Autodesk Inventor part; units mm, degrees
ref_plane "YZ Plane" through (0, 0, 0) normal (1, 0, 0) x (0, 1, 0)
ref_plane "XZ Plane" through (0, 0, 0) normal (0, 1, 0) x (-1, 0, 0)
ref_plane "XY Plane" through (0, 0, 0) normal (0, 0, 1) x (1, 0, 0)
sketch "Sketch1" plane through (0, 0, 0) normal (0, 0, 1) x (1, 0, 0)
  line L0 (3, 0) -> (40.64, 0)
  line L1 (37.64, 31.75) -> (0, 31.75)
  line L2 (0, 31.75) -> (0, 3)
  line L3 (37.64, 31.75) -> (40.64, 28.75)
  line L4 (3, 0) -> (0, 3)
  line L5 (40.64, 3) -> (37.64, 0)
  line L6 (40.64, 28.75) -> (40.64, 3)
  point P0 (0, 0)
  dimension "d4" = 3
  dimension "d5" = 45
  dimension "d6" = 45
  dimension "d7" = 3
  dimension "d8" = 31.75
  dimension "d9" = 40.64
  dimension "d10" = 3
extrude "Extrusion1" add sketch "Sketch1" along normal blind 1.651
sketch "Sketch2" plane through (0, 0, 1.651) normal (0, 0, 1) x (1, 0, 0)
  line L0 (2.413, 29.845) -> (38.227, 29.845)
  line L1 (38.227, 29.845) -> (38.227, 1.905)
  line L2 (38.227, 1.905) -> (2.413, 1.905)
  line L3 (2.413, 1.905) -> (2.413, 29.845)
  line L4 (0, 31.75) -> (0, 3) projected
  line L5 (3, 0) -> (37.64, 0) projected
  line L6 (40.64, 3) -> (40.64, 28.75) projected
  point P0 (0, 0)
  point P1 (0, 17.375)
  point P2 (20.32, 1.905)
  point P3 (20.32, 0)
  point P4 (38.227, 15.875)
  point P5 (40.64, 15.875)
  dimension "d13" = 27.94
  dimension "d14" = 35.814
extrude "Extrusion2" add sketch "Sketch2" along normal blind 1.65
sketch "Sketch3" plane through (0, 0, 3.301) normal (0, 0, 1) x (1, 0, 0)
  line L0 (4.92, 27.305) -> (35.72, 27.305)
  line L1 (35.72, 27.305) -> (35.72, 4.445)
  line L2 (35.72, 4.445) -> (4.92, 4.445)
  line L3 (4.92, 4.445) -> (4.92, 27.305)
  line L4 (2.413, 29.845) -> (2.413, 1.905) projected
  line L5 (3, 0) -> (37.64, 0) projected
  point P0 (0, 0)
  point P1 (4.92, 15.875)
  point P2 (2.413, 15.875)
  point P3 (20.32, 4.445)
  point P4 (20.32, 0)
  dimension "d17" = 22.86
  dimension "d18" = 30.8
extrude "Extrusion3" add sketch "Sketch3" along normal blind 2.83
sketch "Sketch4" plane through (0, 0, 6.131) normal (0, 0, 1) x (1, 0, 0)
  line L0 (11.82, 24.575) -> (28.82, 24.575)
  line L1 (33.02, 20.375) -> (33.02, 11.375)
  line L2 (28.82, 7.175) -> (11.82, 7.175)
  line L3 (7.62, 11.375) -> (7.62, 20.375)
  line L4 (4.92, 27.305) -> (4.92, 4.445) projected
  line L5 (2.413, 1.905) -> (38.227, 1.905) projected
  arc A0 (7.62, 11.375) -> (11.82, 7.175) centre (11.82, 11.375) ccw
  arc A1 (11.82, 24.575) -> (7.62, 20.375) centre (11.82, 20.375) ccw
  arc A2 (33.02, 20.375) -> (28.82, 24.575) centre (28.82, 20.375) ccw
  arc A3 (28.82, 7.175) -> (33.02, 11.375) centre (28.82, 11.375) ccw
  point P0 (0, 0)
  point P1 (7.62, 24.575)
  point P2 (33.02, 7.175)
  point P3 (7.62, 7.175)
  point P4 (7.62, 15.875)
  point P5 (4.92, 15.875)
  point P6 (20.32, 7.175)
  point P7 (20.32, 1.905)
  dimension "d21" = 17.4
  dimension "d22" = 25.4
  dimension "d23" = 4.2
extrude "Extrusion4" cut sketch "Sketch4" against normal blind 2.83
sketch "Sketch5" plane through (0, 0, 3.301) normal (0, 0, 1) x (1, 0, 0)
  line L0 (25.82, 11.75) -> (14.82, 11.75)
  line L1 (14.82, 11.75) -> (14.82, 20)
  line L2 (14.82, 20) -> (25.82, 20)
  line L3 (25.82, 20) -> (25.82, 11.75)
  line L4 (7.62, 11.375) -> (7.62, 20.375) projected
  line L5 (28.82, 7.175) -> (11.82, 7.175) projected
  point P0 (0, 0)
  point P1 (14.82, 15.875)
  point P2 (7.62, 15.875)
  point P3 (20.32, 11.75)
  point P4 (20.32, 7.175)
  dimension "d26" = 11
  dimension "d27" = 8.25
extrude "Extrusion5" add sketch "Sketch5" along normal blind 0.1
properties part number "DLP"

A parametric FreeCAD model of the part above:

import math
import FreeCAD as App
import Part
import Sketcher
from FreeCAD import Vector
Q = App.Units.Quantity

doc = App.newDocument("Part")
body = doc.addObject("PartDesign::Body", "Body")

sketch1 = body.newObject("Sketcher::SketchObject", "Sketch")
sketch1.AttachmentSupport = (doc.getObject("XY_Plane"), [""])
sketch1.MapMode = "FlatFace"
sketch1.addGeometry([
    Part.LineSegment(Vector(0, 3, 0), Vector(3, 0, 0)),
    Part.LineSegment(Vector(3, 0, 0), Vector(37.64, 0, 0)),
    Part.LineSegment(Vector(37.64, 0, 0), Vector(40.64, 3, 0)),
    Part.LineSegment(Vector(40.64, 3, 0), Vector(40.64, 28.75, 0)),
    Part.LineSegment(Vector(40.64, 28.75, 0), Vector(37.64, 31.75, 0)),
    Part.LineSegment(Vector(37.64, 31.75, 0), Vector(0, 31.75, 0)),
    Part.LineSegment(Vector(0, 31.75, 0), Vector(0, 3, 0)),
], False)
sketch1.addConstraint([
    Sketcher.Constraint("Coincident", 0, 2, 1, 1),
    Sketcher.Constraint("Coincident", 1, 2, 2, 1),
    Sketcher.Constraint("Coincident", 2, 2, 3, 1),
    Sketcher.Constraint("Coincident", 3, 2, 4, 1),
    Sketcher.Constraint("Coincident", 4, 2, 5, 1),
    Sketcher.Constraint("Coincident", 5, 2, 6, 1),
    Sketcher.Constraint("Coincident", 6, 2, 0, 1),
    Sketcher.Constraint("Horizontal", 1),
    Sketcher.Constraint("Vertical", 3),
    Sketcher.Constraint("Horizontal", 5),
    Sketcher.Constraint("Vertical", 6),
    Sketcher.Constraint("PointOnObject", 0, 2, -1),
    Sketcher.Constraint("PointOnObject", 5, 2, -2),
    Sketcher.Constraint("Perpendicular", 0, 2),
    Sketcher.Constraint("Perpendicular", 2, 4),
    Sketcher.Constraint("Horizontal", 2, 2, 6, 2),
    Sketcher.Constraint("Vertical", 1, 2, 4, 2),
    Sketcher.Constraint("Equal", 0, 2),
    Sketcher.Constraint("DistanceX", -1, 1, 2, 2, Q("1.6 in")),
    Sketcher.Constraint("DistanceY", -1, 1, 4, 2, Q("1.25 in")),
    Sketcher.Constraint("DistanceX", -1, 1, 0, 2, Q("0.1181 in")),
])
pad1 = body.newObject("PartDesign::Pad", "Pad")
pad1.Profile = sketch1
pad1.Length = Q("0.065 in")

sketch2 = body.newObject("Sketcher::SketchObject", "Sketch001")
sketch2.AttachmentSupport = (doc.getObject("XY_Plane"), [""])
sketch2.MapMode = "FlatFace"
sketch2.AttachmentOffset = App.Placement(Vector(0, 0, 0.065 * 25.4), App.Rotation())
sketch2.addGeometry([
    Part.LineSegment(Vector(38.227, 29.845, 0), Vector(2.413, 29.845, 0)),
    Part.LineSegment(Vector(2.413, 29.845, 0), Vector(2.413, 1.905, 0)),
    Part.LineSegment(Vector(2.413, 1.905, 0), Vector(38.227, 1.905, 0)),
    Part.LineSegment(Vector(38.227, 1.905, 0), Vector(38.227, 29.845, 0)),
], False)
sketch2.addConstraint([
    Sketcher.Constraint("Coincident", 0, 2, 1, 1),
    Sketcher.Constraint("Coincident", 1, 2, 2, 1),
    Sketcher.Constraint("Coincident", 2, 2, 3, 1),
    Sketcher.Constraint("Coincident", 3, 2, 0, 1),
    Sketcher.Constraint("Horizontal", 0),
    Sketcher.Constraint("Vertical", 1),
    Sketcher.Constraint("Horizontal", 2),
    Sketcher.Constraint("Vertical", 3),
    Sketcher.Constraint("DistanceY", 1, 2, 1, 1, Q("1.1 in")),
    Sketcher.Constraint("DistanceX", 0, 2, 0, 1, Q("1.41 in")),
    Sketcher.Constraint("DistanceX", -1, 1, 0, 2, Q("0.095 in")),
    Sketcher.Constraint("DistanceY", -1, 1, 0, 2, Q("1.175 in")),
])
pad2 = body.newObject("PartDesign::Pad", "Pad001")
pad2.Profile = sketch2
pad2.Length = 1.65

sketch3 = body.newObject("Sketcher::SketchObject", "Sketch002")
sketch3.AttachmentSupport = (doc.getObject("XY_Plane"), [""])
sketch3.MapMode = "FlatFace"
sketch3.AttachmentOffset = App.Placement(Vector(0, 0, 3.301), App.Rotation())
sketch3.addGeometry([
    Part.LineSegment(Vector(35.72, 27.305, 0), Vector(4.92, 27.305, 0)),
    Part.LineSegment(Vector(4.92, 27.305, 0), Vector(4.92, 4.445, 0)),
    Part.LineSegment(Vector(4.92, 4.445, 0), Vector(35.72, 4.445, 0)),
    Part.LineSegment(Vector(35.72, 4.445, 0), Vector(35.72, 27.305, 0)),
], False)
sketch3.addConstraint([
    Sketcher.Constraint("Coincident", 0, 2, 1, 1),
    Sketcher.Constraint("Coincident", 1, 2, 2, 1),
    Sketcher.Constraint("Coincident", 2, 2, 3, 1),
    Sketcher.Constraint("Coincident", 3, 2, 0, 1),
    Sketcher.Constraint("Horizontal", 0),
    Sketcher.Constraint("Vertical", 1),
    Sketcher.Constraint("Horizontal", 2),
    Sketcher.Constraint("Vertical", 3),
    Sketcher.Constraint("DistanceY", 1, 2, 1, 1, Q("0.9 in")),
    Sketcher.Constraint("DistanceX", 0, 2, 0, 1, Q("1.2126 in")),
    Sketcher.Constraint("DistanceY", -1, 1, 0, 2, Q("1.075 in")),
    Sketcher.Constraint("DistanceX", -1, 1, 0, 2, Q("0.1937 in")),
])
pad3 = body.newObject("PartDesign::Pad", "Pad002")
pad3.Profile = sketch3
pad3.Length = 2.83

sketch4 = body.newObject("Sketcher::SketchObject", "Sketch003")
sketch4.AttachmentSupport = (doc.getObject("XY_Plane"), [""])
sketch4.MapMode = "FlatFace"
sketch4.AttachmentOffset = App.Placement(Vector(0, 0, 6.131), App.Rotation())
sketch4.addGeometry([
    Part.LineSegment(Vector(28.82, 24.575, 0), Vector(11.82, 24.575, 0)),
    Part.ArcOfCircle(Part.Circle(Vector(11.82, 20.375, 0), Vector(0, 0, 1), 4.2), math.radians(90), math.radians(180)),
    Part.LineSegment(Vector(7.62, 20.375, 0), Vector(7.62, 11.375, 0)),
    Part.ArcOfCircle(Part.Circle(Vector(11.82, 11.375, 0), Vector(0, 0, 1), 4.2), math.radians(180), math.radians(270)),
    Part.LineSegment(Vector(11.82, 7.175, 0), Vector(28.82, 7.175, 0)),
    Part.ArcOfCircle(Part.Circle(Vector(28.82, 11.375, 0), Vector(0, 0, 1), 4.2), math.radians(-90), math.radians(0)),
    Part.LineSegment(Vector(33.02, 11.375, 0), Vector(33.02, 20.375, 0)),
    Part.ArcOfCircle(Part.Circle(Vector(28.82, 20.375, 0), Vector(0, 0, 1), 4.2), math.radians(0), math.radians(90)),
], False)
sketch4.addConstraint([
    Sketcher.Constraint("Tangent", 0, 2, 1, 1),
    Sketcher.Constraint("Tangent", 1, 2, 2, 1),
    Sketcher.Constraint("Tangent", 2, 2, 3, 1),
    Sketcher.Constraint("Tangent", 3, 2, 4, 1),
    Sketcher.Constraint("Tangent", 4, 2, 5, 1),
    Sketcher.Constraint("Tangent", 5, 2, 6, 1),
    Sketcher.Constraint("Tangent", 6, 2, 7, 1),
    Sketcher.Constraint("Tangent", 7, 2, 0, 1),
    Sketcher.Constraint("Horizontal", 0),
    Sketcher.Constraint("Vertical", 2),
    Sketcher.Constraint("Horizontal", 4),
    Sketcher.Constraint("Vertical", 6),
    Sketcher.Constraint("Equal", 1, 3),
    Sketcher.Constraint("Equal", 3, 5),
    Sketcher.Constraint("Equal", 5, 7),
    Sketcher.Constraint("Radius", 1, Q("4.2 mm")),
    Sketcher.Constraint("DistanceX", -1, 1, 1, 2, Q("0.3 in")),
    Sketcher.Constraint("DistanceX", -1, 1, 5, 2, Q("1.3 in")),
    Sketcher.Constraint("DistanceY", 3, 2, 0, 2, Q("17.4 mm")),
    Sketcher.Constraint("DistanceY", -1, 1, 1, 3, Q("20.375 mm")),
])
pocket1 = body.newObject("PartDesign::Pocket", "Pocket")
pocket1.Profile = sketch4
pocket1.Length = 2.83

sketch5 = body.newObject("Sketcher::SketchObject", "Sketch004")
sketch5.AttachmentSupport = (doc.getObject("XY_Plane"), [""])
sketch5.MapMode = "FlatFace"
sketch5.AttachmentOffset = App.Placement(Vector(0, 0, 3.301), App.Rotation())
sketch5.addGeometry([
    Part.LineSegment(Vector(14.82, 11.75, 0), Vector(25.82, 11.75, 0)),
    Part.LineSegment(Vector(25.82, 11.75, 0), Vector(25.82, 20, 0)),
    Part.LineSegment(Vector(25.82, 20, 0), Vector(14.82, 20, 0)),
    Part.LineSegment(Vector(14.82, 20, 0), Vector(14.82, 11.75, 0)),
], False)
sketch5.addConstraint([
    Sketcher.Constraint("Coincident", 0, 2, 1, 1),
    Sketcher.Constraint("Coincident", 1, 2, 2, 1),
    Sketcher.Constraint("Coincident", 2, 2, 3, 1),
    Sketcher.Constraint("Coincident", 3, 2, 0, 1),
    Sketcher.Constraint("Horizontal", 0),
    Sketcher.Constraint("Vertical", 1),
    Sketcher.Constraint("Horizontal", 2),
    Sketcher.Constraint("Vertical", 3),
    Sketcher.Constraint("DistanceY", 1, 1, 1, 2, Q("0.3248 in")),
    Sketcher.Constraint("DistanceX", 0, 1, 0, 2, Q("11 mm")),
    Sketcher.Constraint("DistanceY", -1, 1, 0, 2, Q("0.4626 in")),
    Sketcher.Constraint("DistanceX", -1, 1, 0, 2, Q("25.82 mm")),
])
pad4 = body.newObject("PartDesign::Pad", "Pad003")
pad4.Profile = sketch5
pad4.Length = 0.1

doc.recompute()
